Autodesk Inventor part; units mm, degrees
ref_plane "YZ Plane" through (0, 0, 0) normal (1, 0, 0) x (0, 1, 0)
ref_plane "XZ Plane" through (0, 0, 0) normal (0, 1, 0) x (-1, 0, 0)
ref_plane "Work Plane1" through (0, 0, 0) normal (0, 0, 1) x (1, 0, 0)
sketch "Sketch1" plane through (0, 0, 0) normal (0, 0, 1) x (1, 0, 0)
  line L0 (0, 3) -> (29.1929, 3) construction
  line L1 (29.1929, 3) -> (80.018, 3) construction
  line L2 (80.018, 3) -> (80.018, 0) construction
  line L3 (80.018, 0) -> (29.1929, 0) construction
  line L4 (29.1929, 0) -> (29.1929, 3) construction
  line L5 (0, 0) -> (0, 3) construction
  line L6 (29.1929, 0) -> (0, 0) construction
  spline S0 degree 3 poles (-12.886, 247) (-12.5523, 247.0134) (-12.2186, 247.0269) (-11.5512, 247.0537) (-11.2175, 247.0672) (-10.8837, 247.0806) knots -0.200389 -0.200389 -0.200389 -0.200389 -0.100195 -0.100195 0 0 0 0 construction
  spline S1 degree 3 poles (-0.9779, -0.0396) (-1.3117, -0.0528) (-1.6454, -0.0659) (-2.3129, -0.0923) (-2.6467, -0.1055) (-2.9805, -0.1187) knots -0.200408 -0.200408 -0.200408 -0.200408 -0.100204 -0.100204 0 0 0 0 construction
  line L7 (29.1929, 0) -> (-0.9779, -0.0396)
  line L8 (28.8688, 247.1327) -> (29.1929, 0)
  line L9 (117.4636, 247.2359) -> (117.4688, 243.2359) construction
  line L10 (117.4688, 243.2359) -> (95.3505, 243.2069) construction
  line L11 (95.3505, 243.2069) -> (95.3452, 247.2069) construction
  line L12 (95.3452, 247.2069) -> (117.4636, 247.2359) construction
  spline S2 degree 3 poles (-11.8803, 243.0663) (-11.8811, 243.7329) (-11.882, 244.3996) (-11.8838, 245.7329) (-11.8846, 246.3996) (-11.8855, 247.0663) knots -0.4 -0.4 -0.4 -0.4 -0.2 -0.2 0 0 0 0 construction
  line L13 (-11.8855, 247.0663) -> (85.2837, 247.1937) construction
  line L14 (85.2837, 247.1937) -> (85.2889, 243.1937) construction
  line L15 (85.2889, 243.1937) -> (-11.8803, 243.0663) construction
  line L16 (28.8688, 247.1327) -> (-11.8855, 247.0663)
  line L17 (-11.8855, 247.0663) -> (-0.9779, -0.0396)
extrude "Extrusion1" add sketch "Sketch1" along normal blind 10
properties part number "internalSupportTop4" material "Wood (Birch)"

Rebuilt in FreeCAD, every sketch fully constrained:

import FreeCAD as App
import Part
import Sketcher

V = App.Vector
Q = App.Units.Quantity

doc = App.newDocument("Part")
body = doc.addObject("PartDesign::Body", "Body")

# Sketch on XY plane
sketch1 = doc.addObject("Sketcher::SketchObject", "Sketch")
body.addObject(sketch1)
sketch1.AttachmentSupport = (doc.XY_Plane, [""])
sketch1.MapMode = "FlatFace"
sketch1.addGeometry(Part.LineSegment(V(-0.9779, -0.0396, 0), V(29.1929, 0, 0)), False)
sketch1.addGeometry(Part.LineSegment(V(29.1929, 0, 0), V(28.8688, 247.1327, 0)), False)
sketch1.addGeometry(Part.LineSegment(V(28.8688, 247.1327, 0), V(-11.8855, 247.0663, 0)), False)
sketch1.addGeometry(Part.LineSegment(V(-11.8855, 247.0663, 0), V(-0.9779, -0.0396, 0)), False)
sketch1.addConstraint(Sketcher.Constraint("Coincident", 0, 2, 1, 1))
sketch1.addConstraint(Sketcher.Constraint("Coincident", 1, 2, 2, 1))
sketch1.addConstraint(Sketcher.Constraint("Coincident", 2, 2, 3, 1))
sketch1.addConstraint(Sketcher.Constraint("Coincident", 3, 2, 0, 1))
sketch1.addConstraint(Sketcher.Constraint("PointOnObject", 0, 2, -1))
sketch1.addConstraint(Sketcher.Constraint("Distance", 1, Q("247.133 mm")))
sketch1.addConstraint(Sketcher.Constraint("DistanceX", -1, 1, 0, 2, Q("29.193 mm")))
sketch1.addConstraint(Sketcher.Constraint("DistanceX", 3, 2, -1, 1, Q("0.978 mm")))
sketch1.addConstraint(Sketcher.Constraint("DistanceX", 1, 2, 0, 2, Q("0.324 mm")))
sketch1.addConstraint(Sketcher.Constraint("DistanceY", 3, 2, 2, 2, Q("247.106 mm")))
sketch1.addConstraint(Sketcher.Constraint("Distance", 2, Q("40.7544 mm")))
sketch1.addConstraint(Sketcher.Constraint("DistanceY", -1, 1, 2, 2, Q("247.0663 mm")))
pad1 = doc.addObject("PartDesign::Pad", "Pad")
body.addObject(pad1)
pad1.Profile = sketch1
pad1.Length = 10

doc.recompute()
